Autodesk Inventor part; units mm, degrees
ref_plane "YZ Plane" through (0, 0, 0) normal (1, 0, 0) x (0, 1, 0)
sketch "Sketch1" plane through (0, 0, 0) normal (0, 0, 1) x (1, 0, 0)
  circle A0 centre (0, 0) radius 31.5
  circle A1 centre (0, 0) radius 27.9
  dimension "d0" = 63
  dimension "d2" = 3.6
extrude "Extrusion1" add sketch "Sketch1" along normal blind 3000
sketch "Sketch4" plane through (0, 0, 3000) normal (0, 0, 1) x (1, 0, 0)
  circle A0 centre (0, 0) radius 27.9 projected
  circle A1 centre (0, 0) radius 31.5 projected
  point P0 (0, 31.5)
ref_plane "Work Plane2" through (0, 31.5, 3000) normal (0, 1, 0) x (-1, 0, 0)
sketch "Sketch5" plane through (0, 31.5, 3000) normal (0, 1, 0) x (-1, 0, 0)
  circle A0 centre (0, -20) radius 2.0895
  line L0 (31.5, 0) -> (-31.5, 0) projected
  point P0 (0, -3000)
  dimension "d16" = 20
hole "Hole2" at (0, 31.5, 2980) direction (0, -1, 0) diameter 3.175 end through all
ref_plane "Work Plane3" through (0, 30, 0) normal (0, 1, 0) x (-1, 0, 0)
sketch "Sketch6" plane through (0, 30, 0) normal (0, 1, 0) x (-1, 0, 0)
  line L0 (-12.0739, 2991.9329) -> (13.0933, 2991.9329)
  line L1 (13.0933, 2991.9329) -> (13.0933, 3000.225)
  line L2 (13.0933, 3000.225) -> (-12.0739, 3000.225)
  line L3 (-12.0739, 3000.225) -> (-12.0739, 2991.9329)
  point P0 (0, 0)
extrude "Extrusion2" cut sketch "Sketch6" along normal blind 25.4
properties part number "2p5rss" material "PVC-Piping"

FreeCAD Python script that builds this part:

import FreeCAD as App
import Part
import Sketcher

V = App.Vector
Q = App.Units.Quantity


def add_polygon(sketch, points):
    """Adds a closed chain of lines whose ends are joined by coincident constraints."""
    first, n = sketch.GeometryCount, len(points)
    for a, b in zip(points, points[1:] + points[:1]):
        sketch.addGeometry(Part.LineSegment(App.Vector(*a, 0), App.Vector(*b, 0)), False)
    for i in range(n):
        sketch.addConstraint(Sketcher.Constraint("Coincident", first + i, 2, first + (i + 1) % n, 1))

doc = App.newDocument("Part")
body = doc.addObject("PartDesign::Body", "Body")

# Sketch on XY plane
sketch1 = body.newObject("Sketcher::SketchObject", "Sketch")
sketch1.AttachmentSupport = (doc.getObject("XY_Plane"), [""])
sketch1.MapMode = "FlatFace"
sketch1.addGeometry(Part.Circle(V(0, 0, 0), V(0, 0, 1), 31.5), False)
sketch1.addGeometry(Part.Circle(V(0, 0, 0), V(0, 0, 1), 27.9), False)
sketch1.addConstraint(Sketcher.Constraint("Coincident", 0, 3, -1, 1))
sketch1.addConstraint(Sketcher.Constraint("Coincident", 1, 3, -1, 1))
sketch1.addConstraint(Sketcher.Constraint("Diameter", 0, Q("63 mm")))
sketch1.addConstraint(Sketcher.Constraint("Diameter", 1, Q("55.8 mm")))
pad1 = body.newObject("PartDesign::Pad", "Pad")
pad1.Profile = sketch1
pad1.Length = 3000

# Sketch on XZ plane
sketch2 = body.newObject("Sketcher::SketchObject", "Sketch001")
sketch2.AttachmentSupport = (doc.getObject("XZ_Plane"), [""])
sketch2.MapMode = "FlatFace"
sketch2.AttachmentOffset = App.Placement(V(0, 0, -31.5), App.Rotation())
sketch2.addGeometry(Part.Circle(V(0, 2980, 0), V(0, 0, 1), 1.5875), False)
sketch2.addConstraint(Sketcher.Constraint("PointOnObject", 0, 3, -2))
sketch2.addConstraint(Sketcher.Constraint("Diameter", 0, Q("3.175 mm")))
sketch2.addConstraint(Sketcher.Constraint("DistanceY", -1, 1, 0, 3, Q("2980 mm")))
doc.recompute()
hole = body.newObject("PartDesign::Hole", "Hole")
hole.Profile = sketch2
hole.ThreadType = "None"
hole.Diameter = 3.175
hole.DepthType = "ThroughAll"
hole.Reversed = True

# Sketch on XZ plane
sketch3 = body.newObject("Sketcher::SketchObject", "Sketch002")
sketch3.AttachmentSupport = (doc.getObject("XZ_Plane"), [""])
sketch3.MapMode = "FlatFace"
sketch3.AttachmentOffset = App.Placement(V(0, 0, -30), App.Rotation())
add_polygon(sketch3, [(12.0739, 3000.225), (12.0739, 2991.9329), (-13.0933, 2991.9329), (-13.0933, 3000.225)])  # lines 0-3
sketch3.addConstraint(Sketcher.Constraint("Vertical", 0))
sketch3.addConstraint(Sketcher.Constraint("Horizontal", 1))
sketch3.addConstraint(Sketcher.Constraint("Vertical", 2))
sketch3.addConstraint(Sketcher.Constraint("Horizontal", 3))
sketch3.addConstraint(Sketcher.Constraint("DistanceY", 0, 2, 0, 1, Q("8.292 mm")))
sketch3.addConstraint(Sketcher.Constraint("DistanceX", 1, 2, 1, 1, Q("25.1672 mm")))
sketch3.addConstraint(Sketcher.Constraint("DistanceX", -1, 1, 0, 2, Q("12.074 mm")))
sketch3.addConstraint(Sketcher.Constraint("DistanceY", -1, 1, 0, 2, Q("2991.933 mm")))
pocket1 = body.newObject("PartDesign::Pocket", "Pocket")
pocket1.Profile = sketch3
pocket1.Length = 25.4

doc.recompute()
